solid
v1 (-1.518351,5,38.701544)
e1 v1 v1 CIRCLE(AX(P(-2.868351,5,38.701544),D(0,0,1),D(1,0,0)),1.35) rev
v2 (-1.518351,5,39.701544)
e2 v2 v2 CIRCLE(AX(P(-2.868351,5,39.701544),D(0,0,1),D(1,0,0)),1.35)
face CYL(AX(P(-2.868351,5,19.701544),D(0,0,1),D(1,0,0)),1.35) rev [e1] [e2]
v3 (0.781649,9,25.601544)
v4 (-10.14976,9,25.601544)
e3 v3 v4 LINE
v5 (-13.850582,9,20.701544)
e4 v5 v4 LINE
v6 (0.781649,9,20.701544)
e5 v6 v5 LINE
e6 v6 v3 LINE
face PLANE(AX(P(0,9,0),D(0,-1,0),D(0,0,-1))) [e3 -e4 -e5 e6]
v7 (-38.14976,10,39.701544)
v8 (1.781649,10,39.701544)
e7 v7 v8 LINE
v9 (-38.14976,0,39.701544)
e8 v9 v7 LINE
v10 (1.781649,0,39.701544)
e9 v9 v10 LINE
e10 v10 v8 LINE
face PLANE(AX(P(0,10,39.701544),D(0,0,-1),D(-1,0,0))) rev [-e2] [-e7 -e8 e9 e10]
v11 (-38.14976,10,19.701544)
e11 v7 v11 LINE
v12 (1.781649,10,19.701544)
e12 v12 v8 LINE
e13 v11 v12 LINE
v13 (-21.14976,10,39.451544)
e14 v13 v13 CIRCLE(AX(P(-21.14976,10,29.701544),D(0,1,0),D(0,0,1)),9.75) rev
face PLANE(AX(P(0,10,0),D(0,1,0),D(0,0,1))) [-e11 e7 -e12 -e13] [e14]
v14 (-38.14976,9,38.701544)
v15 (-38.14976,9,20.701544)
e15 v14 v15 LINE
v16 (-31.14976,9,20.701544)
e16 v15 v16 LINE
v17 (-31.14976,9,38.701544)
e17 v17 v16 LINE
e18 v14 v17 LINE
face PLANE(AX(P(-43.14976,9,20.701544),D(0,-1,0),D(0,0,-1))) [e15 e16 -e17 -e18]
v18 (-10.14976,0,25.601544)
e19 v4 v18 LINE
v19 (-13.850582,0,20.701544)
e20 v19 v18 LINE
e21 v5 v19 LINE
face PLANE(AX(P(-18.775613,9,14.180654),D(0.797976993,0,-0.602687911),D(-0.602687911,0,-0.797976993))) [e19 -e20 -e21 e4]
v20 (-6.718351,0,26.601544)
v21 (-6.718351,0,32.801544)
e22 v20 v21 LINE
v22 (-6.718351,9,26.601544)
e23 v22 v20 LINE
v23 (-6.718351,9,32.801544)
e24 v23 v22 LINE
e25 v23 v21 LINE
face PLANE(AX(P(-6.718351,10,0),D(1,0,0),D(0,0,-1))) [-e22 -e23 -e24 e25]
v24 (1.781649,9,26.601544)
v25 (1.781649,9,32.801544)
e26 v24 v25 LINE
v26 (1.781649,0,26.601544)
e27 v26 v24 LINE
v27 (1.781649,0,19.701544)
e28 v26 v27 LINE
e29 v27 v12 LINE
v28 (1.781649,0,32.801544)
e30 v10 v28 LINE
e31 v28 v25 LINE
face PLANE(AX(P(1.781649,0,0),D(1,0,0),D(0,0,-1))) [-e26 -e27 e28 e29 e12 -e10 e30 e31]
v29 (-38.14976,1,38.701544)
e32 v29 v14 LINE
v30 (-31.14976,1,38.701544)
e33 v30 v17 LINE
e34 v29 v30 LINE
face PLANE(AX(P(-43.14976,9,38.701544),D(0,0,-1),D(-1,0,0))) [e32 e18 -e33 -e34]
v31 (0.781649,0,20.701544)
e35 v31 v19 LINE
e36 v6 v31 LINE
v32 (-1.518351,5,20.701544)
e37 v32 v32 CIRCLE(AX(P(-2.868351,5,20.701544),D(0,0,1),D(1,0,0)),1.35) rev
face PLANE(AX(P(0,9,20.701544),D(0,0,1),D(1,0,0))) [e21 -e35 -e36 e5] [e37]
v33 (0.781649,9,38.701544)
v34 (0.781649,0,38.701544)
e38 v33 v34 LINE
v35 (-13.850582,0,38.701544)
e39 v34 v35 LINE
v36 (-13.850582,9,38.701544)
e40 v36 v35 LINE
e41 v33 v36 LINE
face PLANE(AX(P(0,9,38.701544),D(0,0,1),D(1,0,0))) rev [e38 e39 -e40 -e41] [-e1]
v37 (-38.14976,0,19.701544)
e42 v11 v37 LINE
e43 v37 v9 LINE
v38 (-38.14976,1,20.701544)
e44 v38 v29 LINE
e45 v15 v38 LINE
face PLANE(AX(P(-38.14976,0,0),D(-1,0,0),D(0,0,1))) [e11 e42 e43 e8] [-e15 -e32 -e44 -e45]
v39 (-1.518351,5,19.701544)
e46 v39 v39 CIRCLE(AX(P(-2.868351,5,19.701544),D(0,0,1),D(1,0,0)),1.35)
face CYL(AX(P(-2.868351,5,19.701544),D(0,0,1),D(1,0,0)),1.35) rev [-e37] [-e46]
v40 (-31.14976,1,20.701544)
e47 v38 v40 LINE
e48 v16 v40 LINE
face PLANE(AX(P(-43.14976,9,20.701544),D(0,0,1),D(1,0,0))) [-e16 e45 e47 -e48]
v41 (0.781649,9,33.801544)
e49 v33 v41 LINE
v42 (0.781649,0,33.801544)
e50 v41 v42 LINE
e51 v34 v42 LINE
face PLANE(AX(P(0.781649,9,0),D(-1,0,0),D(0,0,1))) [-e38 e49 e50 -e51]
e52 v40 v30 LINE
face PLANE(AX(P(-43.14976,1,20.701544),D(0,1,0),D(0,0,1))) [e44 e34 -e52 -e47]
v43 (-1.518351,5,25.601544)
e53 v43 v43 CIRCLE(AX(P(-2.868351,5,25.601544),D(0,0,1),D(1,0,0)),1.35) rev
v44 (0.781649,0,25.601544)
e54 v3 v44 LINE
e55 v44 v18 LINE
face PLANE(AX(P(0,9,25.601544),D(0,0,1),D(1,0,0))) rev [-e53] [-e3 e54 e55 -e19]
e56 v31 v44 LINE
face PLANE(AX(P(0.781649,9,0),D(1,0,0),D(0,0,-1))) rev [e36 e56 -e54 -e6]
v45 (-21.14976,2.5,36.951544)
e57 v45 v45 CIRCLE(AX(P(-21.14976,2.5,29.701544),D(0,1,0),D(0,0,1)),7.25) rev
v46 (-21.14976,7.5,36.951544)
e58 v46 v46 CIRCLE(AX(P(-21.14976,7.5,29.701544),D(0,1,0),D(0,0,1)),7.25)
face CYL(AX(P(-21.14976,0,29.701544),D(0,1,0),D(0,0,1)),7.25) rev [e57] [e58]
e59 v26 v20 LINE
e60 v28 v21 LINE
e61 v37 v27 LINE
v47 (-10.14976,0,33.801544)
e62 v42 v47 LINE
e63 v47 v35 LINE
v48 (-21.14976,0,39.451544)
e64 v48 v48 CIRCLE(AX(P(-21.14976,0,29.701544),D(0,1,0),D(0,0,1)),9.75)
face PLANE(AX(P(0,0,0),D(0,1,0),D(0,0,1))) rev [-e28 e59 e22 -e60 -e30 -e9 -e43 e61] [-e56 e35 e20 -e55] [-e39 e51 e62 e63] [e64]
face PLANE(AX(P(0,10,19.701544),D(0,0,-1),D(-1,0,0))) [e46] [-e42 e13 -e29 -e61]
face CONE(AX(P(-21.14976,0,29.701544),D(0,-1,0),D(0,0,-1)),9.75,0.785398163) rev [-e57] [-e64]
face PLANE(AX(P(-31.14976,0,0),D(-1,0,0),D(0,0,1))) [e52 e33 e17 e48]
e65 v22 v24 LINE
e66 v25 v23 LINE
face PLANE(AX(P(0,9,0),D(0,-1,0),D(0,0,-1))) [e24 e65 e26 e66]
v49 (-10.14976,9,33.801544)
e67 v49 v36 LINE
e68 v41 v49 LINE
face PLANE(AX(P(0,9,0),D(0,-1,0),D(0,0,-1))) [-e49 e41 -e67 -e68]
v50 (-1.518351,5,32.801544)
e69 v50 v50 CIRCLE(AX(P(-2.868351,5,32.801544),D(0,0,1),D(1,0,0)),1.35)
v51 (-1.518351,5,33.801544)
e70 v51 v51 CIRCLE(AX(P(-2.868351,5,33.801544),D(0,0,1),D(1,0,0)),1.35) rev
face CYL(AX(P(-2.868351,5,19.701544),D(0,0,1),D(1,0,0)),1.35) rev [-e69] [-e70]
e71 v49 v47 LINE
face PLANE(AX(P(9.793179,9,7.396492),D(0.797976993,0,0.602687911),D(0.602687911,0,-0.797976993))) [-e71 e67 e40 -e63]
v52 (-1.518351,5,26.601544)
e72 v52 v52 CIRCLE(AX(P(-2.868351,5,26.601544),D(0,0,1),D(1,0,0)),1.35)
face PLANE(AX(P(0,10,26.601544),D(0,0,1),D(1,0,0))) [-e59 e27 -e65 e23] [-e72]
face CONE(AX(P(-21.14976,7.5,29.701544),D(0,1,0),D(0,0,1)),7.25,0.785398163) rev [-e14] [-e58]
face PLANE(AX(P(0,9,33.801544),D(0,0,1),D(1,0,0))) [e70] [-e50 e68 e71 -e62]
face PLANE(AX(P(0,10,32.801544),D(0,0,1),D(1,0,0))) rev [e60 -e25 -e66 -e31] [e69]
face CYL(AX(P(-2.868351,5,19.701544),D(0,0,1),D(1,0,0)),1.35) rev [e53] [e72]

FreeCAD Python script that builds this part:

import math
import FreeCAD as App
import Part
import Sketcher
Q = App.Units.Quantity


def edges_at(feature, points):
    """Names of the edges that pass closest to the given points."""
    edges = feature.Shape.Edges
    near = lambda p: min(range(len(edges)), key=lambda i: edges[i].distToShape(Part.Vertex(*p))[0])
    return sorted({f"Edge{near(p) + 1}" for p in points})

doc = App.newDocument("Part")
params = doc.addObject("Spreadsheet::Sheet", "Params")
for row, (alias, value) in enumerate([
    ("sketch1_radius", "10 mm"),
    ("sketch1_width", "20 mm"),
    ("sketch1_height", "6.9 mm"),
    ("pad1_length", "10 mm"),
    ("sketch2_diameter", "14.5 mm"),
    ("pocket1_length", "10 mm"),
    ("chamfer_size", "2.5 mm"),
    ("sketch3_width", "2 mm"),
    ("sketch3_height", "6.2 mm"),
    ("pad2_length", "8.5 mm"),
    ("sketch4_height", "6.9 mm"),
    ("pad3_length", "10 mm"),
    ("sketch5_width", "8.5 mm"),
    ("sketch5_height", "6.2 mm"),
    ("pocket2_length", "1 mm"),
    ("sketch6_diameter", "2.7 mm"),
    ("pocket3_length", "20 mm"),
    ("sketch7_radius", "10 mm"),
    ("pad4_length", "10 mm"),
    ("sketch8_width", "10 mm"),
    ("sketch8_width2", "8 mm"),
    ("sketch8_height", "20 mm"),
    ("sketch8_height2", "18 mm"),
    ("pad5_length", "12 mm"),
    ("sketch9_height", "4.9 mm"),
    ("pocket4_length", "9 mm"),
    ("sketch10_width", "10 mm"),
    ("sketch10_width2", "8 mm"),
    ("sketch10_height", "20 mm"),
    ("sketch10_height2", "18 mm"),
    ("pocket5_length", "5 mm"),
], start=1):
    params.set(f"A{row}", alias)
    params.set(f"B{row}", "=" + value)
    params.setAlias(f"B{row}", alias)

body = doc.addObject("PartDesign::Body", "Body")

sketch1 = doc.addObject("Sketcher::SketchObject", "Sketch")
body.addObject(sketch1)
sketch1.AttachmentSupport = (doc.XZ_Plane, [""])
sketch1.MapMode = "FlatFace"
sketch1.addGeometry(Part.ArcOfCircle(Part.Circle(App.Vector(-21, 30, 0), App.Vector(0, 0, 1), 10), math.radians(90), math.radians(270)), False)
sketch1.addGeometry(Part.LineSegment(App.Vector(-21, 40, 0), App.Vector(-1, 40, 0)), False)
sketch1.addGeometry(Part.LineSegment(App.Vector(-1, 40, 0), App.Vector(-1, 33, 0)), False)
sketch1.addGeometry(Part.LineSegment(App.Vector(-1, 33, 0), App.Vector(-7, 33, 0)), False)
sketch1.addGeometry(Part.LineSegment(App.Vector(-7, 33, 0), App.Vector(-7, 27, 0)), False)
sketch1.addGeometry(Part.LineSegment(App.Vector(-7, 27, 0), App.Vector(-1, 27, 0)), False)
sketch1.addGeometry(Part.LineSegment(App.Vector(-1, 27, 0), App.Vector(-1, 20, 0)), False)
sketch1.addGeometry(Part.LineSegment(App.Vector(-1, 20, 0), App.Vector(-21, 20, 0)), False)
sketch1.addConstraint(Sketcher.Constraint("Tangent", 0, 1, 1, 1))
sketch1.addConstraint(Sketcher.Constraint("Coincident", 1, 2, 2, 1))
sketch1.addConstraint(Sketcher.Constraint("Coincident", 2, 2, 3, 1))
sketch1.addConstraint(Sketcher.Constraint("Coincident", 3, 2, 4, 1))
sketch1.addConstraint(Sketcher.Constraint("Coincident", 4, 2, 5, 1))
sketch1.addConstraint(Sketcher.Constraint("Coincident", 5, 2, 6, 1))
sketch1.addConstraint(Sketcher.Constraint("Coincident", 6, 2, 7, 1))
sketch1.addConstraint(Sketcher.Constraint("Tangent", 7, 2, 0, 2))
sketch1.addConstraint(Sketcher.Constraint("Horizontal", 1))
sketch1.addConstraint(Sketcher.Constraint("Vertical", 2))
sketch1.addConstraint(Sketcher.Constraint("Horizontal", 3))
sketch1.addConstraint(Sketcher.Constraint("Vertical", 4))
sketch1.addConstraint(Sketcher.Constraint("Horizontal", 5))
sketch1.addConstraint(Sketcher.Constraint("Vertical", 6))
sketch1.addConstraint(Sketcher.Constraint("Horizontal", 7))
sketch1.addConstraint(Sketcher.Constraint("Vertical", 2, 2, 5, 2))
sketch1.addConstraint(Sketcher.Constraint("Equal", 2, 6))
sketch1.addConstraint(Sketcher.Constraint("Radius", 0, Q("10 mm")))
sketch1.addConstraint(Sketcher.Constraint("DistanceX", 1, 1, 1, 2, Q("20 mm")))
sketch1.addConstraint(Sketcher.Constraint("DistanceY", 2, 2, 2, 1, Q("6.9 mm")))
sketch1.addConstraint(Sketcher.Constraint("DistanceX", 3, 2, 3, 1, Q("5.568592 mm")))
sketch1.addConstraint(Sketcher.Constraint("DistanceX", 0, 3, -1, 1, Q("21.14976 mm")))
sketch1.addConstraint(Sketcher.Constraint("DistanceY", -1, 1, 0, 3, Q("29.701544 mm")))
sketch1.setExpression("Constraints[17]", "Params.sketch1_radius")
sketch1.setExpression("Constraints[18]", "Params.sketch1_width")
sketch1.setExpression("Constraints[19]", "Params.sketch1_height")
pad1 = doc.addObject("PartDesign::Pad", "Pad")
body.addObject(pad1)
pad1.Profile = sketch1
pad1.setExpression("Length", "Params.pad1_length")
pad1.Reversed = True

sketch2 = doc.addObject("Sketcher::SketchObject", "Sketch001")
body.addObject(sketch2)
sketch2.AttachmentSupport = (doc.XZ_Plane, [""])
sketch2.MapMode = "FlatFace"
sketch2.AttachmentOffset = App.Placement(App.Vector(0, 0, -10), App.Rotation())
sketch2.addGeometry(Part.Circle(App.Vector(-21, 30, 0), App.Vector(0, 0, 1), 7), False)
sketch2.addConstraint(Sketcher.Constraint("Diameter", 0, Q("14.5 mm")))
sketch2.addConstraint(Sketcher.Constraint("DistanceX", 0, 3, -1, 1, Q("21.14976 mm")))
sketch2.addConstraint(Sketcher.Constraint("DistanceY", -1, 1, 0, 3, Q("29.701544 mm")))
sketch2.setExpression("Constraints[0]", "Params.sketch2_diameter")
pocket1 = doc.addObject("PartDesign::Pocket", "Pocket")
body.addObject(pocket1)
pocket1.Profile = sketch2
pocket1.setExpression("Length", "Params.pocket1_length")
pocket1.Reversed = True
doc.recompute()

chamfer = doc.addObject("PartDesign::Chamfer", "Chamfer")
body.addObject(chamfer)
chamfer.Base = (pocket1, edges_at(pocket1, [(-21.15, 0, 22.452), (-21.15, 10, 22.452)]))
chamfer.setExpression("Size", "Params.chamfer_size")

sketch3 = doc.addObject("Sketcher::SketchObject", "Sketch002")
body.addObject(sketch3)
sketch3.AttachmentSupport = (doc.YZ_Plane, [""])
sketch3.MapMode = "FlatFace"
sketch3.AttachmentOffset = App.Placement(App.Vector(0, 0, -6.718351), App.Rotation())
sketch3.addGeometry(Part.LineSegment(App.Vector(10, 32.8, 0), App.Vector(8, 32.8, 0)), False)
sketch3.addGeometry(Part.LineSegment(App.Vector(8, 32.8, 0), App.Vector(8, 26.6, 0)), False)
sketch3.addGeometry(Part.LineSegment(App.Vector(8, 26.6, 0), App.Vector(10, 26.6, 0)), False)
sketch3.addGeometry(Part.LineSegment(App.Vector(10, 26.6, 0), App.Vector(10, 32.8, 0)), False)
sketch3.addConstraint(Sketcher.Constraint("Coincident", 0, 2, 1, 1))
sketch3.addConstraint(Sketcher.Constraint("Coincident", 1, 2, 2, 1))
sketch3.addConstraint(Sketcher.Constraint("Coincident", 2, 2, 3, 1))
sketch3.addConstraint(Sketcher.Constraint("Coincident", 3, 2, 0, 1))
sketch3.addConstraint(Sketcher.Constraint("Horizontal", 0))
sketch3.addConstraint(Sketcher.Constraint("Vertical", 1))
sketch3.addConstraint(Sketcher.Constraint("Horizontal", 2))
sketch3.addConstraint(Sketcher.Constraint("Vertical", 3))
sketch3.addConstraint(Sketcher.Constraint("DistanceX", 0, 2, 0, 1, Q("2 mm")))
sketch3.addConstraint(Sketcher.Constraint("DistanceY", 1, 2, 1, 1, Q("6.2 mm")))
sketch3.addConstraint(Sketcher.Constraint("DistanceX", -1, 1, 0, 2, Q("8 mm")))
sketch3.addConstraint(Sketcher.Constraint("DistanceY", -1, 1, 0, 2, Q("32.801544 mm")))
sketch3.setExpression("Constraints[8]", "Params.sketch3_width")
sketch3.setExpression("Constraints[9]", "Params.sketch3_height")
pad2 = doc.addObject("PartDesign::Pad", "Pad001")
body.addObject(pad2)
pad2.Profile = sketch3
pad2.setExpression("Length", "Params.pad2_length")

sketch4 = doc.addObject("Sketcher::SketchObject", "Sketch003")
body.addObject(sketch4)
sketch4.AttachmentSupport = (doc.XZ_Plane, [""])
sketch4.MapMode = "FlatFace"
sketch4.AttachmentOffset = App.Placement(App.Vector(0, 0, -10), App.Rotation())
sketch4.addGeometry(Part.LineSegment(App.Vector(-1.1, 19.7, 0), App.Vector(-1.1, 26.6, 0)), False)
sketch4.addGeometry(Part.LineSegment(App.Vector(-1.1, 26.6, 0), App.Vector(1.8, 26.6, 0)), False)
sketch4.addGeometry(Part.LineSegment(App.Vector(1.8, 26.6, 0), App.Vector(1.8, 19.7, 0)), False)
sketch4.addGeometry(Part.LineSegment(App.Vector(1.8, 19.7, 0), App.Vector(-1.1, 19.7, 0)), False)
sketch4.addGeometry(Part.LineSegment(App.Vector(-1.1, 32.8, 0), App.Vector(-1.1, 39.7, 0)), False)
sketch4.addGeometry(Part.LineSegment(App.Vector(-1.1, 39.7, 0), App.Vector(1.8, 39.7, 0)), False)
sketch4.addGeometry(Part.LineSegment(App.Vector(1.8, 39.7, 0), App.Vector(1.8, 32.8, 0)), False)
sketch4.addGeometry(Part.LineSegment(App.Vector(1.8, 32.8, 0), App.Vector(-1.1, 32.8, 0)), False)
sketch4.addConstraint(Sketcher.Constraint("Coincident", 0, 2, 1, 1))
sketch4.addConstraint(Sketcher.Constraint("Coincident", 1, 2, 2, 1))
sketch4.addConstraint(Sketcher.Constraint("Coincident", 2, 2, 3, 1))
sketch4.addConstraint(Sketcher.Constraint("Coincident", 3, 2, 0, 1))
sketch4.addConstraint(Sketcher.Constraint("Coincident", 4, 2, 5, 1))
sketch4.addConstraint(Sketcher.Constraint("Coincident", 5, 2, 6, 1))
sketch4.addConstraint(Sketcher.Constraint("Coincident", 6, 2, 7, 1))
sketch4.addConstraint(Sketcher.Constraint("Coincident", 7, 2, 4, 1))
sketch4.addConstraint(Sketcher.Constraint("Vertical", 0))
sketch4.addConstraint(Sketcher.Constraint("Horizontal", 1))
sketch4.addConstraint(Sketcher.Constraint("Vertical", 2))
sketch4.addConstraint(Sketcher.Constraint("Horizontal", 3))
sketch4.addConstraint(Sketcher.Constraint("Vertical", 4))
sketch4.addConstraint(Sketcher.Constraint("Horizontal", 5))
sketch4.addConstraint(Sketcher.Constraint("Vertical", 6))
sketch4.addConstraint(Sketcher.Constraint("Horizontal", 7))
sketch4.addConstraint(Sketcher.Constraint("Vertical", 3, 2, 4, 2))
sketch4.addConstraint(Sketcher.Constraint("Vertical", 2, 2, 5, 2))
sketch4.addConstraint(Sketcher.Constraint("Equal", 2, 4))
sketch4.addConstraint(Sketcher.Constraint("DistanceY", 0, 1, 0, 2, Q("6.9 mm")))
sketch4.addConstraint(Sketcher.Constraint("DistanceY", 3, 2, 4, 2, Q("20 mm")))
sketch4.addConstraint(Sketcher.Constraint("DistanceX", 1, 1, 1, 2, Q("2.931408 mm")))
sketch4.addConstraint(Sketcher.Constraint("DistanceX", 0, 2, -1, 1, Q("1.14976 mm")))
sketch4.addConstraint(Sketcher.Constraint("DistanceY", -1, 1, 0, 2, Q("26.601544 mm")))
sketch4.setExpression("Constraints[19]", "Params.sketch4_height")
pad3 = doc.addObject("PartDesign::Pad", "Pad002")
body.addObject(pad3)
pad3.Profile = sketch4
pad3.setExpression("Length", "Params.pad3_length")

sketch5 = doc.addObject("Sketcher::SketchObject", "Sketch004")
body.addObject(sketch5)
sketch5.AttachmentSupport = (doc.XZ_Plane, [""])
sketch5.MapMode = "FlatFace"
sketch5.AttachmentOffset = App.Placement(App.Vector(0, 0, -8), App.Rotation())
sketch5.addGeometry(Part.LineSegment(App.Vector(-7, 33, 0), App.Vector(-7, 27, 0)), False)
sketch5.addGeometry(Part.LineSegment(App.Vector(-7, 27, 0), App.Vector(2, 27, 0)), False)
sketch5.addGeometry(Part.LineSegment(App.Vector(2, 27, 0), App.Vector(2, 33, 0)), False)
sketch5.addGeometry(Part.LineSegment(App.Vector(2, 33, 0), App.Vector(-7, 33, 0)), False)
sketch5.addConstraint(Sketcher.Constraint("Coincident", 0, 2, 1, 1))
sketch5.addConstraint(Sketcher.Constraint("Coincident", 1, 2, 2, 1))
sketch5.addConstraint(Sketcher.Constraint("Coincident", 2, 2, 3, 1))
sketch5.addConstraint(Sketcher.Constraint("Coincident", 3, 2, 0, 1))
sketch5.addConstraint(Sketcher.Constraint("Vertical", 0))
sketch5.addConstraint(Sketcher.Constraint("Horizontal", 1))
sketch5.addConstraint(Sketcher.Constraint("Vertical", 2))
sketch5.addConstraint(Sketcher.Constraint("Horizontal", 3))
sketch5.addConstraint(Sketcher.Constraint("DistanceX", 1, 1, 1, 2, Q("8.5 mm")))
sketch5.addConstraint(Sketcher.Constraint("DistanceY", 0, 2, 0, 1, Q("6.2 mm")))
sketch5.addConstraint(Sketcher.Constraint("DistanceX", 0, 2, -1, 1, Q("6.718351 mm")))
sketch5.addConstraint(Sketcher.Constraint("DistanceY", -1, 1, 0, 2, Q("26.601544 mm")))
sketch5.setExpression("Constraints[8]", "Params.sketch5_width")
sketch5.setExpression("Constraints[9]", "Params.sketch5_height")
pocket2 = doc.addObject("PartDesign::Pocket", "Pocket001")
body.addObject(pocket2)
pocket2.Profile = sketch5
pocket2.setExpression("Length", "Params.pocket2_length")

sketch6 = doc.addObject("Sketcher::SketchObject", "Sketch005")
body.addObject(sketch6)
sketch6.AttachmentSupport = (doc.XY_Plane, [""])
sketch6.MapMode = "FlatFace"
sketch6.AttachmentOffset = App.Placement(App.Vector(0, 0, 39.701544), App.Rotation())
sketch6.addGeometry(Part.Circle(App.Vector(-2.9, 5, 0), App.Vector(0, 0, 1), 1.4), False)
sketch6.addConstraint(Sketcher.Constraint("Diameter", 0, Q("2.7 mm")))
sketch6.addConstraint(Sketcher.Constraint("DistanceY", -1, 1, 0, 3, Q("5 mm")))
sketch6.addConstraint(Sketcher.Constraint("DistanceX", 0, 3, -1, 1, Q("2.868351 mm")))
sketch6.setExpression("Constraints[0]", "Params.sketch6_diameter")
pocket3 = doc.addObject("PartDesign::Pocket", "Pocket002")
body.addObject(pocket3)
pocket3.Profile = sketch6
pocket3.setExpression("Length", "Params.pocket3_length")

sketch7 = doc.addObject("Sketcher::SketchObject", "Sketch006")
body.addObject(sketch7)
sketch7.AttachmentSupport = (doc.XZ_Plane, [""])
sketch7.MapMode = "FlatFace"
sketch7.addGeometry(Part.ArcOfCircle(Part.Circle(App.Vector(-21, 30, 0), App.Vector(0, 0, 1), 10), math.radians(180), math.radians(270)), False)
sketch7.addGeometry(Part.LineSegment(App.Vector(-21, 20, 0), App.Vector(-31, 20, 0)), False)
sketch7.addGeometry(Part.LineSegment(App.Vector(-31, 20, 0), App.Vector(-31, 30, 0)), False)
sketch7.addGeometry(Part.ArcOfCircle(Part.Circle(App.Vector(-21, 30, 0), App.Vector(0, 0, 1), 10), math.radians(90), math.radians(180)), False)
sketch7.addGeometry(Part.LineSegment(App.Vector(-31, 30, 0), App.Vector(-31, 40, 0)), False)
sketch7.addGeometry(Part.LineSegment(App.Vector(-31, 40, 0), App.Vector(-21, 40, 0)), False)
sketch7.addConstraint(Sketcher.Constraint("Tangent", 0, 2, 1, 1))
sketch7.addConstraint(Sketcher.Constraint("Coincident", 1, 2, 2, 1))
sketch7.addConstraint(Sketcher.Constraint("Tangent", 2, 2, 0, 1))
sketch7.addConstraint(Sketcher.Constraint("Tangent", 3, 2, 4, 1))
sketch7.addConstraint(Sketcher.Constraint("Coincident", 4, 2, 5, 1))
sketch7.addConstraint(Sketcher.Constraint("Tangent", 5, 2, 3, 1))
sketch7.addConstraint(Sketcher.Constraint("Horizontal", 1))
sketch7.addConstraint(Sketcher.Constraint("Vertical", 2))
sketch7.addConstraint(Sketcher.Constraint("Vertical", 4))
sketch7.addConstraint(Sketcher.Constraint("Horizontal", 5))
sketch7.addConstraint(Sketcher.Constraint("Coincident", 3, 3, 0, 3))
sketch7.addConstraint(Sketcher.Constraint("Equal", 0, 3))
sketch7.addConstraint(Sketcher.Constraint("Radius", 0, Q("10 mm")))
sketch7.addConstraint(Sketcher.Constraint("DistanceX", 0, 3, -1, 1, Q("21.14976 mm")))
sketch7.addConstraint(Sketcher.Constraint("DistanceY", -1, 1, 0, 3, Q("29.701544 mm")))
sketch7.setExpression("Constraints[12]", "Params.sketch7_radius")
pad4 = doc.addObject("PartDesign::Pad", "Pad003")
body.addObject(pad4)
pad4.Profile = sketch7
pad4.setExpression("Length", "Params.pad4_length")
pad4.Reversed = True

sketch8 = doc.addObject("Sketcher::SketchObject", "Sketch007")
body.addObject(sketch8)
sketch8.AttachmentSupport = (doc.YZ_Plane, [""])
sketch8.MapMode = "FlatFace"
sketch8.AttachmentOffset = App.Placement(App.Vector(0, 0, -31.14976), App.Rotation())
sketch8.addGeometry(Part.LineSegment(App.Vector(10, 20, 0), App.Vector(0, 20, 0)), False)
sketch8.addGeometry(Part.LineSegment(App.Vector(0, 20, 0), App.Vector(0, 40, 0)), False)
sketch8.addGeometry(Part.LineSegment(App.Vector(0, 40, 0), App.Vector(10, 40, 0)), False)
sketch8.addGeometry(Part.LineSegment(App.Vector(10, 40, 0), App.Vector(10, 20, 0)), False)
sketch8.addGeometry(Part.LineSegment(App.Vector(1, 39, 0), App.Vector(1, 21, 0)), False)
sketch8.addGeometry(Part.LineSegment(App.Vector(1, 21, 0), App.Vector(9, 21, 0)), False)
sketch8.addGeometry(Part.LineSegment(App.Vector(9, 21, 0), App.Vector(9, 39, 0)), False)
sketch8.addGeometry(Part.LineSegment(App.Vector(9, 39, 0), App.Vector(1, 39, 0)), False)
sketch8.addConstraint(Sketcher.Constraint("Coincident", 0, 2, 1, 1))
sketch8.addConstraint(Sketcher.Constraint("Coincident", 1, 2, 2, 1))
sketch8.addConstraint(Sketcher.Constraint("Coincident", 2, 2, 3, 1))
sketch8.addConstraint(Sketcher.Constraint("Coincident", 3, 2, 0, 1))
sketch8.addConstraint(Sketcher.Constraint("Coincident", 4, 2, 5, 1))
sketch8.addConstraint(Sketcher.Constraint("Coincident", 5, 2, 6, 1))
sketch8.addConstraint(Sketcher.Constraint("Coincident", 6, 2, 7, 1))
sketch8.addConstraint(Sketcher.Constraint("Coincident", 7, 2, 4, 1))
sketch8.addConstraint(Sketcher.Constraint("Horizontal", 0))
sketch8.addConstraint(Sketcher.Constraint("Vertical", 1))
sketch8.addConstraint(Sketcher.Constraint("Horizontal", 2))
sketch8.addConstraint(Sketcher.Constraint("Vertical", 3))
sketch8.addConstraint(Sketcher.Constraint("Vertical", 4))
sketch8.addConstraint(Sketcher.Constraint("Horizontal", 5))
sketch8.addConstraint(Sketcher.Constraint("Vertical", 6))
sketch8.addConstraint(Sketcher.Constraint("Horizontal", 7))
sketch8.addConstraint(Sketcher.Constraint("PointOnObject", 0, 2, -2))
sketch8.addConstraint(Sketcher.Constraint("DistanceX", 0, 2, 0, 1, Q("10 mm")))
sketch8.addConstraint(Sketcher.Constraint("DistanceX", 5, 1, 5, 2, Q("8 mm")))
sketch8.addConstraint(Sketcher.Constraint("DistanceY", 1, 1, 1, 2, Q("20 mm")))
sketch8.addConstraint(Sketcher.Constraint("DistanceY", 4, 2, 4, 1, Q("18 mm")))
sketch8.addConstraint(Sketcher.Constraint("DistanceX", -1, 1, 4, 2, Q("1 mm")))
sketch8.addConstraint(Sketcher.Constraint("DistanceY", 0, 2, 4, 2, Q("1 mm")))
sketch8.addConstraint(Sketcher.Constraint("DistanceY", -1, 1, 0, 2, Q("19.701544 mm")))
sketch8.setExpression("Constraints[17]", "Params.sketch8_width")
sketch8.setExpression("Constraints[18]", "Params.sketch8_width2")
sketch8.setExpression("Constraints[19]", "Params.sketch8_height")
sketch8.setExpression("Constraints[20]", "Params.sketch8_height2")
pad5 = doc.addObject("PartDesign::Pad", "Pad004")
body.addObject(pad5)
pad5.Profile = sketch8
pad5.setExpression("Length", "Params.pad5_length")
pad5.Reversed = True

sketch9 = doc.addObject("Sketcher::SketchObject", "Sketch008")
body.addObject(sketch9)
sketch9.AttachmentSupport = (doc.XZ_Plane, [""])
sketch9.MapMode = "FlatFace"
sketch9.addGeometry(Part.LineSegment(App.Vector(0.8, 20.7, 0), App.Vector(0.8, 25.6, 0)), False)
sketch9.addGeometry(Part.LineSegment(App.Vector(0.8, 25.6, 0), App.Vector(-10.1, 25.6, 0)), False)
sketch9.addGeometry(Part.LineSegment(App.Vector(-10.1, 25.6, 0), App.Vector(-13.9, 20.7, 0)), False)
sketch9.addGeometry(Part.LineSegment(App.Vector(-13.9, 20.7, 0), App.Vector(0.8, 20.7, 0)), False)
sketch9.addGeometry(Part.LineSegment(App.Vector(-10.1, 33.8, 0), App.Vector(0.8, 33.8, 0)), False)
sketch9.addGeometry(Part.LineSegment(App.Vector(0.8, 33.8, 0), App.Vector(0.8, 38.7, 0)), False)
sketch9.addGeometry(Part.LineSegment(App.Vector(0.8, 38.7, 0), App.Vector(-13.9, 38.7, 0)), False)
sketch9.addGeometry(Part.LineSegment(App.Vector(-13.9, 38.7, 0), App.Vector(-10.1, 33.8, 0)), False)
sketch9.addConstraint(Sketcher.Constraint("Coincident", 0, 2, 1, 1))
sketch9.addConstraint(Sketcher.Constraint("Coincident", 1, 2, 2, 1))
sketch9.addConstraint(Sketcher.Constraint("Coincident", 2, 2, 3, 1))
sketch9.addConstraint(Sketcher.Constraint("Coincident", 3, 2, 0, 1))
sketch9.addConstraint(Sketcher.Constraint("Coincident", 4, 2, 5, 1))
sketch9.addConstraint(Sketcher.Constraint("Coincident", 5, 2, 6, 1))
sketch9.addConstraint(Sketcher.Constraint("Coincident", 6, 2, 7, 1))
sketch9.addConstraint(Sketcher.Constraint("Coincident", 7, 2, 4, 1))
sketch9.addConstraint(Sketcher.Constraint("Vertical", 0))
sketch9.addConstraint(Sketcher.Constraint("Horizontal", 1))
sketch9.addConstraint(Sketcher.Constraint("Horizontal", 3))
sketch9.addConstraint(Sketcher.Constraint("Horizontal", 4))
sketch9.addConstraint(Sketcher.Constraint("Vertical", 5))
sketch9.addConstraint(Sketcher.Constraint("Horizontal", 6))
sketch9.addConstraint(Sketcher.Constraint("Vertical", 3, 2, 4, 2))
sketch9.addConstraint(Sketcher.Constraint("Vertical", 2, 2, 6, 2))
sketch9.addConstraint(Sketcher.Constraint("Vertical", 1, 2, 7, 2))
sketch9.addConstraint(Sketcher.Constraint("Equal", 0, 5))
sketch9.addConstraint(Sketcher.Constraint("DistanceY", 0, 1, 0, 2, Q("4.9 mm")))
sketch9.addConstraint(Sketcher.Constraint("DistanceY", 3, 2, 5, 2, Q("18 mm")))
sketch9.addConstraint(Sketcher.Constraint("DistanceX", 1, 2, 1, 1, Q("10.931408 mm")))
sketch9.addConstraint(Sketcher.Constraint("DistanceX", 3, 1, 3, 2, Q("14.63223 mm")))
sketch9.addConstraint(Sketcher.Constraint("DistanceX", -1, 1, 0, 2, Q("0.781649 mm")))
sketch9.addConstraint(Sketcher.Constraint("DistanceY", -1, 1, 0, 2, Q("25.601544 mm")))
sketch9.setExpression("Constraints[18]", "Params.sketch9_height")
pocket4 = doc.addObject("PartDesign::Pocket", "Pocket003")
body.addObject(pocket4)
pocket4.Profile = sketch9
pocket4.setExpression("Length", "Params.pocket4_length")

sketch10 = doc.addObject("Sketcher::SketchObject", "Sketch009")
body.addObject(sketch10)
sketch10.AttachmentSupport = (doc.YZ_Plane, [""])
sketch10.MapMode = "FlatFace"
sketch10.AttachmentOffset = App.Placement(App.Vector(0, 0, -43.14976), App.Rotation())
sketch10.addGeometry(Part.LineSegment(App.Vector(10, 20, 0), App.Vector(0, 20, 0)), False)
sketch10.addGeometry(Part.LineSegment(App.Vector(0, 20, 0), App.Vector(0, 40, 0)), False)
sketch10.addGeometry(Part.LineSegment(App.Vector(0, 40, 0), App.Vector(10, 40, 0)), False)
sketch10.addGeometry(Part.LineSegment(App.Vector(10, 40, 0), App.Vector(10, 20, 0)), False)
sketch10.addGeometry(Part.LineSegment(App.Vector(1, 39, 0), App.Vector(1, 21, 0)), False)
sketch10.addGeometry(Part.LineSegment(App.Vector(1, 21, 0), App.Vector(9, 21, 0)), False)
sketch10.addGeometry(Part.LineSegment(App.Vector(9, 21, 0), App.Vector(9, 39, 0)), False)
sketch10.addGeometry(Part.LineSegment(App.Vector(9, 39, 0), App.Vector(1, 39, 0)), False)
sketch10.addConstraint(Sketcher.Constraint("Coincident", 0, 2, 1, 1))
sketch10.addConstraint(Sketcher.Constraint("Coincident", 1, 2, 2, 1))
sketch10.addConstraint(Sketcher.Constraint("Coincident", 2, 2, 3, 1))
sketch10.addConstraint(Sketcher.Constraint("Coincident", 3, 2, 0, 1))
sketch10.addConstraint(Sketcher.Constraint("Coincident", 4, 2, 5, 1))
sketch10.addConstraint(Sketcher.Constraint("Coincident", 5, 2, 6, 1))
sketch10.addConstraint(Sketcher.Constraint("Coincident", 6, 2, 7, 1))
sketch10.addConstraint(Sketcher.Constraint("Coincident", 7, 2, 4, 1))
sketch10.addConstraint(Sketcher.Constraint("Horizontal", 0))
sketch10.addConstraint(Sketcher.Constraint("Vertical", 1))
sketch10.addConstraint(Sketcher.Constraint("Horizontal", 2))
sketch10.addConstraint(Sketcher.Constraint("Vertical", 3))
sketch10.addConstraint(Sketcher.Constraint("Vertical", 4))
sketch10.addConstraint(Sketcher.Constraint("Horizontal", 5))
sketch10.addConstraint(Sketcher.Constraint("Vertical", 6))
sketch10.addConstraint(Sketcher.Constraint("Horizontal", 7))
sketch10.addConstraint(Sketcher.Constraint("PointOnObject", 0, 2, -2))
sketch10.addConstraint(Sketcher.Constraint("DistanceX", 0, 2, 0, 1, Q("10 mm")))
sketch10.addConstraint(Sketcher.Constraint("DistanceX", 5, 1, 5, 2, Q("8 mm")))
sketch10.addConstraint(Sketcher.Constraint("DistanceY", 1, 1, 1, 2, Q("20 mm")))
sketch10.addConstraint(Sketcher.Constraint("DistanceY", 4, 2, 4, 1, Q("18 mm")))
sketch10.addConstraint(Sketcher.Constraint("DistanceX", -1, 1, 4, 2, Q("1 mm")))
sketch10.addConstraint(Sketcher.Constraint("DistanceY", 0, 2, 4, 2, Q("1 mm")))
sketch10.addConstraint(Sketcher.Constraint("DistanceY", -1, 1, 0, 2, Q("19.701544 mm")))
sketch10.setExpression("Constraints[17]", "Params.sketch10_width")
sketch10.setExpression("Constraints[18]", "Params.sketch10_width2")
sketch10.setExpression("Constraints[19]", "Params.sketch10_height")
sketch10.setExpression("Constraints[20]", "Params.sketch10_height2")
pocket5 = doc.addObject("PartDesign::Pocket", "Pocket004")
body.addObject(pocket5)
pocket5.Profile = sketch10
pocket5.setExpression("Length", "Params.pocket5_length")
pocket5.Reversed = True

doc.recompute()
